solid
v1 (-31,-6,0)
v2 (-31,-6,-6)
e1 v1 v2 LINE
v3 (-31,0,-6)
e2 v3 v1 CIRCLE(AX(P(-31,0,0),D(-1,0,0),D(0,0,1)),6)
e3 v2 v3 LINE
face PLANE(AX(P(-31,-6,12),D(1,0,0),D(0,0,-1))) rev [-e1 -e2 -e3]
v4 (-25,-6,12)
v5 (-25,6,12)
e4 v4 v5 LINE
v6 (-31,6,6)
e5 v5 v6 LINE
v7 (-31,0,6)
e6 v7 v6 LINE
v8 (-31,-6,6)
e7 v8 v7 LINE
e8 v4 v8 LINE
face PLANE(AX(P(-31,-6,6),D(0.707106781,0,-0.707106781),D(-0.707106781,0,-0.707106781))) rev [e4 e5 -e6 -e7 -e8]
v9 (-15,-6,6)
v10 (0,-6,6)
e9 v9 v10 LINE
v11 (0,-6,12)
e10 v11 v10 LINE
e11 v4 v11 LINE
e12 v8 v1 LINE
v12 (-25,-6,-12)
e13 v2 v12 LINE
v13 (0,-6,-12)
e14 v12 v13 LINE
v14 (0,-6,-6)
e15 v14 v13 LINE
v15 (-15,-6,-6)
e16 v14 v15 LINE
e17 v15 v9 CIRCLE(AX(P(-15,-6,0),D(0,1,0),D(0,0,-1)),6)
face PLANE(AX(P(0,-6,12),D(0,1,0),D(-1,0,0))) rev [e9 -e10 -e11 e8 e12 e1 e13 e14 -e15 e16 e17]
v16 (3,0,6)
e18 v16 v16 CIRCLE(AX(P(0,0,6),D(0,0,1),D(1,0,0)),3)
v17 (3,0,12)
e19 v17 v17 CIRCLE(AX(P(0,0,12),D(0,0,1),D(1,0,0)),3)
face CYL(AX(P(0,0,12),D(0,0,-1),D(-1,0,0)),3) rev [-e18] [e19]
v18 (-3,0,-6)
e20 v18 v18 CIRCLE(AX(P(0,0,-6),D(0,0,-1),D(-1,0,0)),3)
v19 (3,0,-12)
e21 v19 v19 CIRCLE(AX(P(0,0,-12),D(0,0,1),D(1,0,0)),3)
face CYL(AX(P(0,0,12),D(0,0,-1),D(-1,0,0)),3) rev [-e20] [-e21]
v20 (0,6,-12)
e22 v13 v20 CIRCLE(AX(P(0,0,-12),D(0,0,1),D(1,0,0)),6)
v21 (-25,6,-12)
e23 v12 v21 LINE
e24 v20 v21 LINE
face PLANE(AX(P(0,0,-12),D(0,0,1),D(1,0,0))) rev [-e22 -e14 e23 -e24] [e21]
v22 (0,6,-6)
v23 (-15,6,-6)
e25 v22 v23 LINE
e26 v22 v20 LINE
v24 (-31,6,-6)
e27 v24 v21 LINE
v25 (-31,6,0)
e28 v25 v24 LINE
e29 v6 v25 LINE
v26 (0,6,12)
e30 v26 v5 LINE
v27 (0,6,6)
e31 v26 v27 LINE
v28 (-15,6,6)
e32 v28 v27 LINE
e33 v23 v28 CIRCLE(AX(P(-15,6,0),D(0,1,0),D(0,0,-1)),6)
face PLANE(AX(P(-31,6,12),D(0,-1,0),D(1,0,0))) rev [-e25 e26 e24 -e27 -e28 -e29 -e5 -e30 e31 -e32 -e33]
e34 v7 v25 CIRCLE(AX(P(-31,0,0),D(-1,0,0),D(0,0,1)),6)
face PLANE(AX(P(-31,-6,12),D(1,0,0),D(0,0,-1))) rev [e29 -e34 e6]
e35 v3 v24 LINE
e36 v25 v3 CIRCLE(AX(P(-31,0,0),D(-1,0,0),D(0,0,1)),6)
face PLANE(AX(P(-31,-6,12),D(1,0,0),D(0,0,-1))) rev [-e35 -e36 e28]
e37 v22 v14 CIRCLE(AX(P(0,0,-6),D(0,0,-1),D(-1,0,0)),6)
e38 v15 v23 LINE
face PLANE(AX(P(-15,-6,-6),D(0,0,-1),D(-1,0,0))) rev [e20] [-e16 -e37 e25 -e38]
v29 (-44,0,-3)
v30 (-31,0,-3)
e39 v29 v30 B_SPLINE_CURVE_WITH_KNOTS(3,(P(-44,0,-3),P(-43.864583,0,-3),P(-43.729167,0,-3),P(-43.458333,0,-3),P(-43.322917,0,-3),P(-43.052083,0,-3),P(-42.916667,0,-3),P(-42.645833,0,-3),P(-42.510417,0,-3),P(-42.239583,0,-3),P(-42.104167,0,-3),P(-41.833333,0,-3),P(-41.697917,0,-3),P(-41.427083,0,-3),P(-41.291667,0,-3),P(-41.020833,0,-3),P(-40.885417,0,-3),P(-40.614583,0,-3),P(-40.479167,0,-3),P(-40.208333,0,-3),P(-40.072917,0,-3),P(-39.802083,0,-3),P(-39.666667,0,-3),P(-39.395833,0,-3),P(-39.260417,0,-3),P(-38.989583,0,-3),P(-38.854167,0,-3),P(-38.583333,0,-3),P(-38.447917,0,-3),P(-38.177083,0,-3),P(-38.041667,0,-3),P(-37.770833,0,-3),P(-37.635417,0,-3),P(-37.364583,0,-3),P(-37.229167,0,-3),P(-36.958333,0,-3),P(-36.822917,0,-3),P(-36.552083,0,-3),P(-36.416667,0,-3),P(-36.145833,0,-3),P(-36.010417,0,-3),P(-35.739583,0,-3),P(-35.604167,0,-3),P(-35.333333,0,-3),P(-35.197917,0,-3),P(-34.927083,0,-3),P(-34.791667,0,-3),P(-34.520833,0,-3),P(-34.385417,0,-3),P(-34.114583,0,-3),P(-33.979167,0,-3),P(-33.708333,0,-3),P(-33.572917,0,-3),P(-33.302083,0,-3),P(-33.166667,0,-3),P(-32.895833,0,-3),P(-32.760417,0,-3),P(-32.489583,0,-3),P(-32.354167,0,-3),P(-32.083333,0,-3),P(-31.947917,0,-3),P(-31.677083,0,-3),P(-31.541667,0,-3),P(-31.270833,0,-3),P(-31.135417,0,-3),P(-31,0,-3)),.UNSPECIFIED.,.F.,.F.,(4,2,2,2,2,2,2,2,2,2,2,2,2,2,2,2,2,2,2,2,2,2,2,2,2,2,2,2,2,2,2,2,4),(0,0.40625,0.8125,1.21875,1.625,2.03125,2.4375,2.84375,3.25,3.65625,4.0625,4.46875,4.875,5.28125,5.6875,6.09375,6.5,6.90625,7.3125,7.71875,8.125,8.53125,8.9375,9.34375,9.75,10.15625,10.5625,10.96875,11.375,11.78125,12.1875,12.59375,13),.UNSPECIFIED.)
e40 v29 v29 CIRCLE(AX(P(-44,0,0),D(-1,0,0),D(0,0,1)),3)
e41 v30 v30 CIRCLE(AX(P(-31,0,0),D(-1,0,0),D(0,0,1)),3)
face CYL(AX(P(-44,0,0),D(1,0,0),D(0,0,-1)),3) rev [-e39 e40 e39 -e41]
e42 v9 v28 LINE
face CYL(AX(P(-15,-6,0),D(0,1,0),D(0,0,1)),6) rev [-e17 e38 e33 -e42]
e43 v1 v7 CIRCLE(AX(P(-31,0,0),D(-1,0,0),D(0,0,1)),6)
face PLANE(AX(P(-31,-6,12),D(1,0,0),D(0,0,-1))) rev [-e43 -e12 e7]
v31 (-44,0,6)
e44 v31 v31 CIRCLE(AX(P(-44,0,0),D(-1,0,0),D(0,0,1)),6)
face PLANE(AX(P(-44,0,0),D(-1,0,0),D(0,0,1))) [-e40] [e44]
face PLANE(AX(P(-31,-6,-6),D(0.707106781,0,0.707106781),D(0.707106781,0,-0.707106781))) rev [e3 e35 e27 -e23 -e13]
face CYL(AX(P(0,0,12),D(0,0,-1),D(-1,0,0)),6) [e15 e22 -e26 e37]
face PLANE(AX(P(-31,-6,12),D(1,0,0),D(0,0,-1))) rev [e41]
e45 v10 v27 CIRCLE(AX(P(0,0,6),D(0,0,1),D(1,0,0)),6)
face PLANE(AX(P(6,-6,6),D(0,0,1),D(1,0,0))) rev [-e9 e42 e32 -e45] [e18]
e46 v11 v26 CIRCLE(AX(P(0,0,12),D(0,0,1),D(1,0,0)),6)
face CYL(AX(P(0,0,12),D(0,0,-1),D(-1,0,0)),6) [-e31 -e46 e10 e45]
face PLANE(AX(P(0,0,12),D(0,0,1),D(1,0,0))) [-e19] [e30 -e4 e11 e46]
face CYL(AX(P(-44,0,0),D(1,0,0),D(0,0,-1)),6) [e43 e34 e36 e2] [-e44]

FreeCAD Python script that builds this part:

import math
import FreeCAD as App
import Part
import Sketcher
from FreeCAD import Vector
Q = App.Units.Quantity


def add_polygon(sketch, points):
    """Adds a closed chain of lines whose ends are joined by coincident constraints."""
    first, n = sketch.GeometryCount, len(points)
    for a, b in zip(points, points[1:] + points[:1]):
        sketch.addGeometry(Part.LineSegment(App.Vector(*a, 0), App.Vector(*b, 0)), False)
    for i in range(n):
        sketch.addConstraint(Sketcher.Constraint("Coincident", first + i, 2, first + (i + 1) % n, 1))

doc = App.newDocument("Part")
body = doc.addObject("PartDesign::Body", "Body")

sketch1 = doc.addObject("Sketcher::SketchObject", "Sketch")
body.addObject(sketch1)
sketch1.AttachmentSupport = (doc.XY_Plane, [""])
sketch1.MapMode = "FlatFace"
sketch1.addGeometry(Part.LineSegment(Vector(-31, -6, 0), Vector(0, -6, 0)), False)
sketch1.addGeometry(Part.ArcOfCircle(Part.Circle(Vector(0, 0, 0), Vector(0, 0, 1), 6), math.radians(-90), math.radians(90)), False)
sketch1.addGeometry(Part.LineSegment(Vector(0, 6, 0), Vector(-31, 6, 0)), False)
sketch1.addGeometry(Part.LineSegment(Vector(-31, 6, 0), Vector(-31, -6, 0)), False)
sketch1.addGeometry(Part.Circle(Vector(0, 0, 0), Vector(0, 0, 1), 3), False)
sketch1.addConstraint(Sketcher.Constraint("Tangent", 0, 2, 1, 1))
sketch1.addConstraint(Sketcher.Constraint("Tangent", 1, 2, 2, 1))
sketch1.addConstraint(Sketcher.Constraint("Coincident", 2, 2, 3, 1))
sketch1.addConstraint(Sketcher.Constraint("Coincident", 3, 2, 0, 1))
sketch1.addConstraint(Sketcher.Constraint("Horizontal", 0))
sketch1.addConstraint(Sketcher.Constraint("Horizontal", 2))
sketch1.addConstraint(Sketcher.Constraint("Vertical", 3))
sketch1.addConstraint(Sketcher.Constraint("Coincident", 1, 3, -1, 1))
sketch1.addConstraint(Sketcher.Constraint("Coincident", 4, 3, -1, 1))
sketch1.addConstraint(Sketcher.Constraint("Diameter", 4, Q("6 mm")))
sketch1.addConstraint(Sketcher.Constraint("Radius", 1, Q("6 mm")))
sketch1.addConstraint(Sketcher.Constraint("DistanceX", 0, 1, 0, 2, Q("31 mm")))
pad1 = doc.addObject("PartDesign::Pad", "Pad")
body.addObject(pad1)
pad1.Profile = sketch1
pad1.Length = 24
pad1.Midplane = True

sketch2 = doc.addObject("Sketcher::SketchObject", "Sketch001")
body.addObject(sketch2)
sketch2.AttachmentSupport = (doc.XZ_Plane, [""])
sketch2.MapMode = "FlatFace"
sketch2.addGeometry(Part.LineSegment(Vector(6, -6, 0), Vector(-15, -6, 0)), False)
sketch2.addGeometry(Part.ArcOfCircle(Part.Circle(Vector(-15, 0, 0), Vector(0, 0, 1), 6), math.radians(90), math.radians(270)), False)
sketch2.addGeometry(Part.LineSegment(Vector(-15, 6, 0), Vector(6, 6, 0)), False)
sketch2.addGeometry(Part.LineSegment(Vector(6, 6, 0), Vector(6, -6, 0)), False)
add_polygon(sketch2, [(-31, -6), (-25, -12), (-31, -12)])
add_polygon(sketch2, [(-31, 6), (-31, 12), (-25, 12)])
sketch2.addConstraint(Sketcher.Constraint("Tangent", 0, 2, 1, 2))
sketch2.addConstraint(Sketcher.Constraint("Tangent", 1, 1, 2, 1))
sketch2.addConstraint(Sketcher.Constraint("Coincident", 2, 2, 3, 1))
sketch2.addConstraint(Sketcher.Constraint("Coincident", 3, 2, 0, 1))
sketch2.addConstraint(Sketcher.Constraint("Horizontal", 0))
sketch2.addConstraint(Sketcher.Constraint("Horizontal", 2))
sketch2.addConstraint(Sketcher.Constraint("Vertical", 3))
sketch2.addConstraint(Sketcher.Constraint("Horizontal", 5))
sketch2.addConstraint(Sketcher.Constraint("Vertical", 6))
sketch2.addConstraint(Sketcher.Constraint("Vertical", 7))
sketch2.addConstraint(Sketcher.Constraint("Horizontal", 8))
sketch2.addConstraint(Sketcher.Constraint("Symmetric", 5, 2, 7, 2, -1))
sketch2.addConstraint(Sketcher.Constraint("PointOnObject", 1, 3, -1))
sketch2.addConstraint(Sketcher.Constraint("Perpendicular", 4, 9))
sketch2.addConstraint(Sketcher.Constraint("Horizontal", 3, 2, 6, 2))
sketch2.addConstraint(Sketcher.Constraint("Horizontal", 2, 2, 9, 2))
sketch2.addConstraint(Sketcher.Constraint("Vertical", 4, 2, 8, 2))
sketch2.addConstraint(Sketcher.Constraint("Radius", 1, Q("6 mm")))
sketch2.addConstraint(Sketcher.Constraint("DistanceX", 0, 2, 0, 1, Q("21 mm")))
sketch2.addConstraint(Sketcher.Constraint("DistanceX", 5, 2, 5, 1, Q("6 mm")))
sketch2.addConstraint(Sketcher.Constraint("DistanceX", 1, 3, -1, 1, Q("15 mm")))
sketch2.addConstraint(Sketcher.Constraint("DistanceX", 4, 2, -1, 1, Q("25 mm")))
pocket1 = doc.addObject("PartDesign::Pocket", "Pocket")
body.addObject(pocket1)
pocket1.Profile = sketch2
pocket1.Type = "ThroughAll"
pocket1.Midplane = True

sketch3 = doc.addObject("Sketcher::SketchObject", "Sketch002")
body.addObject(sketch3)
sketch3.AttachmentSupport = (doc.YZ_Plane, [""])
sketch3.MapMode = "FlatFace"
sketch3.AttachmentOffset = App.Placement(Vector(0, 0, -31), App.Rotation())
sketch3.addGeometry(Part.Circle(Vector(0, 0, 0), Vector(0, 0, 1), 6), False)
sketch3.addGeometry(Part.Circle(Vector(0, 0, 0), Vector(0, 0, 1), 3), False)
sketch3.addConstraint(Sketcher.Constraint("Coincident", 0, 3, -1, 1))
sketch3.addConstraint(Sketcher.Constraint("Coincident", 1, 3, -1, 1))
sketch3.addConstraint(Sketcher.Constraint("Diameter", 0, Q("12 mm")))
sketch3.addConstraint(Sketcher.Constraint("Diameter", 1, Q("6 mm")))
pad2 = doc.addObject("PartDesign::Pad", "Pad001")
body.addObject(pad2)
pad2.Profile = sketch3
pad2.Length = 13
pad2.Reversed = True

doc.recompute()
